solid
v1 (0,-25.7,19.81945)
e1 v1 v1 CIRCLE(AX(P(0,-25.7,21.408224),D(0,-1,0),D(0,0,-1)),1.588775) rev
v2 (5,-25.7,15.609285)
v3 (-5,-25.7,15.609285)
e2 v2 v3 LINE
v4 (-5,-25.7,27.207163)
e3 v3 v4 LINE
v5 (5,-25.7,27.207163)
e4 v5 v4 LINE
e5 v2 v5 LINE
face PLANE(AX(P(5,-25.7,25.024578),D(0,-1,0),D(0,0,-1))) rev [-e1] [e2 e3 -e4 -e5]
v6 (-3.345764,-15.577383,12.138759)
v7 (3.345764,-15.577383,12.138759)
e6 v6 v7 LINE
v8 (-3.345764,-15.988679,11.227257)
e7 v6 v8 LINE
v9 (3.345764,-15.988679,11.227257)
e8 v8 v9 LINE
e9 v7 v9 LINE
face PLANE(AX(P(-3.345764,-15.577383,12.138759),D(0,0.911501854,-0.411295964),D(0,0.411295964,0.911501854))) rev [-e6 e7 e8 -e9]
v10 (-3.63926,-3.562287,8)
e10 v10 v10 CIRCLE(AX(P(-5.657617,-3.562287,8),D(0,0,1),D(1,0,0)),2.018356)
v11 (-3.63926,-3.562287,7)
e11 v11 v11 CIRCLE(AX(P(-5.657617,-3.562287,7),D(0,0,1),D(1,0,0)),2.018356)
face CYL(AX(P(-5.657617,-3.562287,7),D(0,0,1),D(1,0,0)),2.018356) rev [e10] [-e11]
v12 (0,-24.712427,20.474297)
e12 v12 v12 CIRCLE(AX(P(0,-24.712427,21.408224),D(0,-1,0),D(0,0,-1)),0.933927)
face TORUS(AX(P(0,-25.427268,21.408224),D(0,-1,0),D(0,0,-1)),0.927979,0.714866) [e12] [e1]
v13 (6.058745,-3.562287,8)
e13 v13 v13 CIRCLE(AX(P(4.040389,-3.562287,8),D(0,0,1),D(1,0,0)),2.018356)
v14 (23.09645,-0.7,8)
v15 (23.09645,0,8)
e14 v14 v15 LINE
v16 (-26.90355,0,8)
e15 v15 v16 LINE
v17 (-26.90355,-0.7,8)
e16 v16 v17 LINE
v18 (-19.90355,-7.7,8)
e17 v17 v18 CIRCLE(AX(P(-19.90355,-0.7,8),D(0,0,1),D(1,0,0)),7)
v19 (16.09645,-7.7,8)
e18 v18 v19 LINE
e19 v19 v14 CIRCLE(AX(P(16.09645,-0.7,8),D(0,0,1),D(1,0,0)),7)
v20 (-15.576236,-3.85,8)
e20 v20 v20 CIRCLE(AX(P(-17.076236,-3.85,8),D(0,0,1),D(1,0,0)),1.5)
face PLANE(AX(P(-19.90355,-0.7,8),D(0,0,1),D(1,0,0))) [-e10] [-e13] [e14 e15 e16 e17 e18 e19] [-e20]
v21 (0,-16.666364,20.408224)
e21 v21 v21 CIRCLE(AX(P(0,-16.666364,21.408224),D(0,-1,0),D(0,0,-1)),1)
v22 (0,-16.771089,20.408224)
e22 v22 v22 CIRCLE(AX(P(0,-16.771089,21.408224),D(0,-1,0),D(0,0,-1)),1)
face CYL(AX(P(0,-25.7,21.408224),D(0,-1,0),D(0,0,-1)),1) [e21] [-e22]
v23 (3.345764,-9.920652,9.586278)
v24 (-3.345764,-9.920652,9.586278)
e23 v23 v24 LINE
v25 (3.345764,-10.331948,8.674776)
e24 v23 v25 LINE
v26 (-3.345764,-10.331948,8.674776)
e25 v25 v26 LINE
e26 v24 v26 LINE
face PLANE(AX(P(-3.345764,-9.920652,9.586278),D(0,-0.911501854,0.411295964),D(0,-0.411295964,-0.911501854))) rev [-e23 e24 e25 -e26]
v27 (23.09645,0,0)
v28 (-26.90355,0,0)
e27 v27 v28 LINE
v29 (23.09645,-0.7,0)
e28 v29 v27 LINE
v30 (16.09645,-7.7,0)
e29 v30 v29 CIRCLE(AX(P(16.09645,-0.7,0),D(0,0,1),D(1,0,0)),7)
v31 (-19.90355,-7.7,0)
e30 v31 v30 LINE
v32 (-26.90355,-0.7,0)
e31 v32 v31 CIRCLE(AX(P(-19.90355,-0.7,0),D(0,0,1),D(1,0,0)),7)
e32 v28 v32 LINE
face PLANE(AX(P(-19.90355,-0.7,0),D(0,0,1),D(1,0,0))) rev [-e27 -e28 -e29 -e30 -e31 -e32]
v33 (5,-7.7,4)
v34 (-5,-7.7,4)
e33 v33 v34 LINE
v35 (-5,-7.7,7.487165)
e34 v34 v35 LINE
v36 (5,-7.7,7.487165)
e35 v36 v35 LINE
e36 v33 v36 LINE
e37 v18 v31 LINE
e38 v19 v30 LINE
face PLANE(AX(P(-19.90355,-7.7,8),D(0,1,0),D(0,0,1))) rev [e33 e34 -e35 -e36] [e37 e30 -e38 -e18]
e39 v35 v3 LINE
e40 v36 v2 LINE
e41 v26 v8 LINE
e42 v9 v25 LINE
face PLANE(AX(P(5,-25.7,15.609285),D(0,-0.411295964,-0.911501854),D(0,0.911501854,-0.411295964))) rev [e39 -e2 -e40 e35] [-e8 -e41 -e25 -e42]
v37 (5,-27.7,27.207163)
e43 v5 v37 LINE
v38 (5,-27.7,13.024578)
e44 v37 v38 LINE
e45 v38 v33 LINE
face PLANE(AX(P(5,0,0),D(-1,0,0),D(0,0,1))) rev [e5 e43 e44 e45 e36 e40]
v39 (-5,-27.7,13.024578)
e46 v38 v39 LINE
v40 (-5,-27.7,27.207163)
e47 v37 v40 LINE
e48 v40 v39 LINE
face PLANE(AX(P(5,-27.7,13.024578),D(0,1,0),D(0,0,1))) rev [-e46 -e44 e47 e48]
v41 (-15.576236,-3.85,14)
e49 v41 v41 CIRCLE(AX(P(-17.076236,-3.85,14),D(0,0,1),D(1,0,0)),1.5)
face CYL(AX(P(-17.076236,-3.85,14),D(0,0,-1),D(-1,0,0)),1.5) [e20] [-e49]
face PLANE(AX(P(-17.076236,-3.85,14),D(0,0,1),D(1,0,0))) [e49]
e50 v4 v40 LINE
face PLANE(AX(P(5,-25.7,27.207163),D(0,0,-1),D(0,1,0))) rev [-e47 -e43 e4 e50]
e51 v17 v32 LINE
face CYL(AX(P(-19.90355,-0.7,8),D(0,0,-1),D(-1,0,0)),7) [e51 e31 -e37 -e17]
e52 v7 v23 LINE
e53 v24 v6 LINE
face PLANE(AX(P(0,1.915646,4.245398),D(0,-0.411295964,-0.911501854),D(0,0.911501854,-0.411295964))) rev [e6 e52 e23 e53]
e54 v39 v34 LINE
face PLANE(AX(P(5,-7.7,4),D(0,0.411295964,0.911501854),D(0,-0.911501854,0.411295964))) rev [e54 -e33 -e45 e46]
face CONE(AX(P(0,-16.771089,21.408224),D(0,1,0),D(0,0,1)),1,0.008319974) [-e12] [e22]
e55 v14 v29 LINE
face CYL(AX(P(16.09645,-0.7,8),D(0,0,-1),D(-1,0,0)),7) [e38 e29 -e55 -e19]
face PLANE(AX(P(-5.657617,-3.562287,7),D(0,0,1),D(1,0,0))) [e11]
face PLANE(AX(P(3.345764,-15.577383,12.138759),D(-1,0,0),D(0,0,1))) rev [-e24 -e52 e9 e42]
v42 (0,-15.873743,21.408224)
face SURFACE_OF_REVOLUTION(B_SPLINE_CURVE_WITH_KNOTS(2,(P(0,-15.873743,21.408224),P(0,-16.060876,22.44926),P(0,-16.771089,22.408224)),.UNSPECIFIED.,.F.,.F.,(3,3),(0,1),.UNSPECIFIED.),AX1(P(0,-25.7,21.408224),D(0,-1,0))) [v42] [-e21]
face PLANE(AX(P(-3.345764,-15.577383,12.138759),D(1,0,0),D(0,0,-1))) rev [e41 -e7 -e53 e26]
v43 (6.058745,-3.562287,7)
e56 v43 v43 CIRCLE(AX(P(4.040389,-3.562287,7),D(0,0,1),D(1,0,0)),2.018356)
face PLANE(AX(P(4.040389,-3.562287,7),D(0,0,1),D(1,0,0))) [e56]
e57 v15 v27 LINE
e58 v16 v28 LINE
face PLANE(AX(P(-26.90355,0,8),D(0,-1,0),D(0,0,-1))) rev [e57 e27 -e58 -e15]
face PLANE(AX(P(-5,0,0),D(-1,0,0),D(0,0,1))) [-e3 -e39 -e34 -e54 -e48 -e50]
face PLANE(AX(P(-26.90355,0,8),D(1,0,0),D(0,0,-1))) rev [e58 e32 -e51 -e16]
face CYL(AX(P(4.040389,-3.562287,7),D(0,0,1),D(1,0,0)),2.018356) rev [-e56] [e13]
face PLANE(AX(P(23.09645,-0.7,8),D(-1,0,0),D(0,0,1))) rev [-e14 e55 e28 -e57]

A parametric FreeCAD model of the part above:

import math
import FreeCAD as App
import Part
import Sketcher

doc = App.newDocument("Part")
params = doc.addObject("Spreadsheet::Sheet", "Params")
for row, (alias, value) in enumerate([
    ("sketch1_radius", "7 mm"),
    ("sketch1_width", "50 mm"),
    ("sketch1_height", "0.7 mm"),
    ("pad1_length", "8 mm"),
    ("sketch2_diameter", "3 mm"),
    ("pad2_length", "6 mm"),
    ("sketch3_width", "2 mm"),
    ("pad3_length", "10 mm"),
    ("pad4_length", "1 mm"),
    ("pocket1_length", "1 mm"),
    ("revolution_angle", "360 deg"),
], start=1):
    params.set(f"A{row}", alias)
    params.set(f"B{row}", "=" + value)
    params.setAlias(f"B{row}", alias)

body = doc.addObject("PartDesign::Body", "Body")

sketch1 = doc.addObject("Sketcher::SketchObject", "Sketch")
body.addObject(sketch1)
sketch1.AttachmentSupport = (doc.XY_Plane, [""])
sketch1.MapMode = "FlatFace"
sketch1.addGeometry(Part.LineSegment(App.Vector(23.1, 0, 0), App.Vector(-26.9, 0, 0)), False)
sketch1.addGeometry(Part.LineSegment(App.Vector(-26.9, 0, 0), App.Vector(-26.9, -0.7, 0)), False)
sketch1.addGeometry(Part.ArcOfCircle(Part.Circle(App.Vector(-19.9, -0.7, 0), App.Vector(0, 0, 1), 7), math.radians(180), math.radians(270)), False)
sketch1.addGeometry(Part.LineSegment(App.Vector(-19.9, -7.7, 0), App.Vector(16.1, -7.7, 0)), False)
sketch1.addGeometry(Part.ArcOfCircle(Part.Circle(App.Vector(16.1, -0.7, 0), App.Vector(0, 0, 1), 7), math.radians(-90), math.radians(0)), False)
sketch1.addGeometry(Part.LineSegment(App.Vector(23.1, -0.7, 0), App.Vector(23.1, 0, 0)), False)
sketch1.addConstraint(Sketcher.Constraint("Coincident", 0, 2, 1, 1))
sketch1.addConstraint(Sketcher.Constraint("Tangent", 1, 2, 2, 1))
sketch1.addConstraint(Sketcher.Constraint("Tangent", 2, 2, 3, 1))
sketch1.addConstraint(Sketcher.Constraint("Tangent", 3, 2, 4, 1))
sketch1.addConstraint(Sketcher.Constraint("Tangent", 4, 2, 5, 1))
sketch1.addConstraint(Sketcher.Constraint("Coincident", 5, 2, 0, 1))
sketch1.addConstraint(Sketcher.Constraint("Horizontal", 0))
sketch1.addConstraint(Sketcher.Constraint("Vertical", 1))
sketch1.addConstraint(Sketcher.Constraint("Horizontal", 3))
sketch1.addConstraint(Sketcher.Constraint("Vertical", 5))
sketch1.addConstraint(Sketcher.Constraint("Equal", 2, 4))
sketch1.addConstraint(Sketcher.Constraint("PointOnObject", 0, 2, -1))
sketch1.addConstraint(Sketcher.Constraint("Radius", 2, 7.0))
sketch1.addConstraint(Sketcher.Constraint("DistanceX", 0, 2, 0, 1, 50.0))
sketch1.addConstraint(Sketcher.Constraint("DistanceY", 1, 2, 1, 1, 0.7))
sketch1.addConstraint(Sketcher.Constraint("DistanceX", 2, 3, -1, 1, 19.90355))
sketch1.setExpression("Constraints[12]", "Params.sketch1_radius")
sketch1.setExpression("Constraints[13]", "Params.sketch1_width")
sketch1.setExpression("Constraints[14]", "Params.sketch1_height")
pad1 = doc.addObject("PartDesign::Pad", "Pad")
body.addObject(pad1)
pad1.Profile = sketch1
pad1.setExpression("Length", "Params.pad1_length")

sketch2 = doc.addObject("Sketcher::SketchObject", "Sketch001")
body.addObject(sketch2)
sketch2.AttachmentSupport = (doc.XY_Plane, [""])
sketch2.MapMode = "FlatFace"
sketch2.AttachmentOffset = App.Placement(App.Vector(0, 0, 8), App.Rotation())
sketch2.addGeometry(Part.Circle(App.Vector(-17.1, -3.9, 0), App.Vector(0, 0, 1), 1.5), False)
sketch2.addConstraint(Sketcher.Constraint("Diameter", 0, 3.0))
sketch2.addConstraint(Sketcher.Constraint("DistanceY", 0, 3, -1, 1, 3.85))
sketch2.addConstraint(Sketcher.Constraint("DistanceX", 0, 3, -1, 1, 17.076236))
sketch2.setExpression("Constraints[0]", "Params.sketch2_diameter")
pad2 = doc.addObject("PartDesign::Pad", "Pad001")
body.addObject(pad2)
pad2.Profile = sketch2
pad2.setExpression("Length", "Params.pad2_length")

sketch3 = doc.addObject("Sketcher::SketchObject", "Sketch002")
body.addObject(sketch3)
sketch3.AttachmentSupport = (doc.YZ_Plane, [""])
sketch3.MapMode = "FlatFace"
sketch3.addGeometry(Part.LineSegment(App.Vector(-27.7, 13, 0), App.Vector(-7.7, 4, 0)), False)
sketch3.addGeometry(Part.LineSegment(App.Vector(-7.7, 4, 0), App.Vector(-7.7, 7.5, 0)), False)
sketch3.addGeometry(Part.LineSegment(App.Vector(-7.7, 7.5, 0), App.Vector(-25.7, 15.6, 0)), False)
sketch3.addGeometry(Part.LineSegment(App.Vector(-25.7, 15.6, 0), App.Vector(-25.7, 27.2, 0)), False)
sketch3.addGeometry(Part.LineSegment(App.Vector(-25.7, 27.2, 0), App.Vector(-27.7, 27.2, 0)), False)
sketch3.addGeometry(Part.LineSegment(App.Vector(-27.7, 27.2, 0), App.Vector(-27.7, 13, 0)), False)
sketch3.addConstraint(Sketcher.Constraint("Coincident", 0, 2, 1, 1))
sketch3.addConstraint(Sketcher.Constraint("Coincident", 1, 2, 2, 1))
sketch3.addConstraint(Sketcher.Constraint("Coincident", 2, 2, 3, 1))
sketch3.addConstraint(Sketcher.Constraint("Coincident", 3, 2, 4, 1))
sketch3.addConstraint(Sketcher.Constraint("Coincident", 4, 2, 5, 1))
sketch3.addConstraint(Sketcher.Constraint("Coincident", 5, 2, 0, 1))
sketch3.addConstraint(Sketcher.Constraint("Vertical", 1))
sketch3.addConstraint(Sketcher.Constraint("Vertical", 3))
sketch3.addConstraint(Sketcher.Constraint("Horizontal", 4))
sketch3.addConstraint(Sketcher.Constraint("Vertical", 5))
sketch3.addConstraint(Sketcher.Constraint("Parallel", 0, 2))
sketch3.addConstraint(Sketcher.Constraint("DistanceX", 4, 2, 4, 1, 2.0))
sketch3.addConstraint(Sketcher.Constraint("DistanceY", -1, 1, 0, 2, 4.0))
sketch3.addConstraint(Sketcher.Constraint("DistanceX", 2, 2, 1, 2, 18.0))
sketch3.addConstraint(Sketcher.Constraint("DistanceX", 0, 2, -1, 1, 7.7))
sketch3.addConstraint(Sketcher.Constraint("Distance", 0, 21.941809))
sketch3.addConstraint(Sketcher.Constraint("DistanceY", 1, 1, 1, 2, 3.487165))
sketch3.addConstraint(Sketcher.Constraint("DistanceY", 3, 1, 3, 2, 11.597878))
sketch3.setExpression("Constraints[11]", "Params.sketch3_width")
pad3 = doc.addObject("PartDesign::Pad", "Pad002")
body.addObject(pad3)
pad3.Profile = sketch3
pad3.setExpression("Length", "Params.pad3_length")
pad3.Midplane = True

sketch4 = doc.addObject("Sketcher::SketchObject", "Sketch003")
body.addObject(sketch4)
sketch4.Placement = App.Placement(App.Vector(0, 1.50435, 3.333897), App.Rotation(App.Vector(1, 0, 0), App.Vector(0, 0.911501854, -0.411295964), App.Vector(0, 0.411295964, 0.911501854), "ZXY"))
sketch4.addGeometry(Part.LineSegment(App.Vector(-3, -13, 0), App.Vector(-3, -19, 0)), False)
sketch4.addGeometry(Part.LineSegment(App.Vector(-3, -19, 0), App.Vector(3, -19, 0)), False)
sketch4.addGeometry(Part.LineSegment(App.Vector(3, -19, 0), App.Vector(3, -13, 0)), False)
sketch4.addGeometry(Part.LineSegment(App.Vector(3, -13, 0), App.Vector(-3, -13, 0)), False)
sketch4.addConstraint(Sketcher.Constraint("Coincident", 0, 2, 1, 1))
sketch4.addConstraint(Sketcher.Constraint("Coincident", 1, 2, 2, 1))
sketch4.addConstraint(Sketcher.Constraint("Coincident", 2, 2, 3, 1))
sketch4.addConstraint(Sketcher.Constraint("Coincident", 3, 2, 0, 1))
sketch4.addConstraint(Sketcher.Constraint("Vertical", 0))
sketch4.addConstraint(Sketcher.Constraint("Horizontal", 1))
sketch4.addConstraint(Sketcher.Constraint("Vertical", 2))
sketch4.addConstraint(Sketcher.Constraint("Horizontal", 3))
sketch4.addConstraint(Sketcher.Constraint("DistanceX", 1, 1, 1, 2, 6.691529))
sketch4.addConstraint(Sketcher.Constraint("DistanceY", 0, 2, 0, 1, 6.205946))
sketch4.addConstraint(Sketcher.Constraint("DistanceY", 2, 2, -1, 1, 12.985491))
sketch4.addConstraint(Sketcher.Constraint("DistanceX", 0, 2, -1, 1, 3.345764))
pad4 = doc.addObject("PartDesign::Pad", "Pad003")
body.addObject(pad4)
pad4.Profile = sketch4
pad4.setExpression("Length", "Params.pad4_length")

sketch5 = doc.addObject("Sketcher::SketchObject", "Sketch004")
body.addObject(sketch5)
sketch5.AttachmentSupport = (doc.XY_Plane, [""])
sketch5.MapMode = "FlatFace"
sketch5.AttachmentOffset = App.Placement(App.Vector(0, 0, 8), App.Rotation())
sketch5.addGeometry(Part.Circle(App.Vector(-5.7, -3.6, 0), App.Vector(0, 0, 1), 2), False)
sketch5.addGeometry(Part.Circle(App.Vector(4, -3.6, 0), App.Vector(0, 0, 1), 2), False)
sketch5.addConstraint(Sketcher.Constraint("Equal", 0, 1))
sketch5.addConstraint(Sketcher.Constraint("Horizontal", 0, 3, 1, 3))
sketch5.addConstraint(Sketcher.Constraint("Diameter", 0, 4.036713))
sketch5.addConstraint(Sketcher.Constraint("DistanceX", -1, 1, 1, 3, 4.040389))
sketch5.addConstraint(Sketcher.Constraint("DistanceX", 0, 3, -1, 1, 5.657617))
sketch5.addConstraint(Sketcher.Constraint("DistanceY", 0, 3, -1, 1, 3.562287))
pocket1 = doc.addObject("PartDesign::Pocket", "Pocket")
body.addObject(pocket1)
pocket1.Profile = sketch5
pocket1.setExpression("Length", "Params.pocket1_length")

sketch6 = doc.addObject("Sketcher::SketchObject", "Sketch005")
body.addObject(sketch6)
sketch6.AttachmentSupport = (doc.YZ_Plane, [""])
sketch6.MapMode = "FlatFace"
sketch6.addGeometry(Part.LineSegment(App.Vector(-25.7, 22.996999, 0), App.Vector(-25.7, 21.408224, 0)), False)
sketch6.addGeometry(Part.LineSegment(App.Vector(-25.7, 21.408224, 0), App.Vector(-15.873743, 21.408224, 0)), False)
sketch6.addGeometry(Part.BSplineCurve([App.Vector(-15.873743, 21.408224, 0), App.Vector(-16.046682, 22.370301, 0), App.Vector(-16.666364, 22.408224, 0)], [3, 3], [0, 0.92415357], False, 2, [1, 1, 1], False), False)
sketch6.addGeometry(Part.LineSegment(App.Vector(-16.666364, 22.408224, 0), App.Vector(-16.771089, 22.408224, 0)), False)
sketch6.addGeometry(Part.LineSegment(App.Vector(-16.771089, 22.408224, 0), App.Vector(-24.712427, 22.342151, 0)), False)
sketch6.addGeometry(Part.ArcOfCircle(Part.Circle(App.Vector(-25.427268, 22.336203, 0), App.Vector(0, 0, 1), 0.714866), math.radians(0.476699), math.radians(112.427528)), False)
sketch6.addGeometry(Part.LineSegment(App.Vector(-25.7, 21.408224, 0), App.Vector(-15.873743, 21.408224, 0)), True)
sketch6.addConstraint(Sketcher.Constraint("Block", 2))
sketch6.addConstraint(Sketcher.Constraint("Coincident", 0, 2, 1, 1))
sketch6.addConstraint(Sketcher.Constraint("Coincident", 1, 2, 2, 1))
sketch6.addConstraint(Sketcher.Constraint("Coincident", 2, 2, 3, 1))
sketch6.addConstraint(Sketcher.Constraint("Coincident", 3, 2, 4, 1))
sketch6.addConstraint(Sketcher.Constraint("Coincident", 4, 2, 5, 1))
sketch6.addConstraint(Sketcher.Constraint("Coincident", 5, 2, 0, 1))
sketch6.addConstraint(Sketcher.Constraint("Vertical", 0))
sketch6.addConstraint(Sketcher.Constraint("Horizontal", 1))
sketch6.addConstraint(Sketcher.Constraint("Horizontal", 3))
sketch6.addConstraint(Sketcher.Constraint("Horizontal", 6))
sketch6.addConstraint(Sketcher.Constraint("Coincident", 6, 1, 0, 2))
sketch6.addConstraint(Sketcher.Constraint("Equal", 1, 6))
sketch6.addConstraint(Sketcher.Constraint("DistanceX", 0, 2, -1, 1, 25.7))
sketch6.addConstraint(Sketcher.Constraint("DistanceY", -1, 1, 5, 2, 22.996999))
sketch6.addConstraint(Sketcher.Constraint("Radius", 5, 0.714866))
sketch6.addConstraint(Sketcher.Constraint("DistanceX", 3, 2, 3, 1, 0.104725))
sketch6.addConstraint(Sketcher.Constraint("DistanceX", 5, 3, -1, 1, 25.427268))
sketch6.addConstraint(Sketcher.Constraint("DistanceY", -1, 1, 4, 2, 22.342151))
revolution = doc.addObject("PartDesign::Revolution", "Revolution")
body.addObject(revolution)
revolution.Profile = sketch6
revolution.ReferenceAxis = (sketch6, ["Axis0"])
revolution.setExpression("Angle", "Params.revolution_angle")

doc.recompute()
